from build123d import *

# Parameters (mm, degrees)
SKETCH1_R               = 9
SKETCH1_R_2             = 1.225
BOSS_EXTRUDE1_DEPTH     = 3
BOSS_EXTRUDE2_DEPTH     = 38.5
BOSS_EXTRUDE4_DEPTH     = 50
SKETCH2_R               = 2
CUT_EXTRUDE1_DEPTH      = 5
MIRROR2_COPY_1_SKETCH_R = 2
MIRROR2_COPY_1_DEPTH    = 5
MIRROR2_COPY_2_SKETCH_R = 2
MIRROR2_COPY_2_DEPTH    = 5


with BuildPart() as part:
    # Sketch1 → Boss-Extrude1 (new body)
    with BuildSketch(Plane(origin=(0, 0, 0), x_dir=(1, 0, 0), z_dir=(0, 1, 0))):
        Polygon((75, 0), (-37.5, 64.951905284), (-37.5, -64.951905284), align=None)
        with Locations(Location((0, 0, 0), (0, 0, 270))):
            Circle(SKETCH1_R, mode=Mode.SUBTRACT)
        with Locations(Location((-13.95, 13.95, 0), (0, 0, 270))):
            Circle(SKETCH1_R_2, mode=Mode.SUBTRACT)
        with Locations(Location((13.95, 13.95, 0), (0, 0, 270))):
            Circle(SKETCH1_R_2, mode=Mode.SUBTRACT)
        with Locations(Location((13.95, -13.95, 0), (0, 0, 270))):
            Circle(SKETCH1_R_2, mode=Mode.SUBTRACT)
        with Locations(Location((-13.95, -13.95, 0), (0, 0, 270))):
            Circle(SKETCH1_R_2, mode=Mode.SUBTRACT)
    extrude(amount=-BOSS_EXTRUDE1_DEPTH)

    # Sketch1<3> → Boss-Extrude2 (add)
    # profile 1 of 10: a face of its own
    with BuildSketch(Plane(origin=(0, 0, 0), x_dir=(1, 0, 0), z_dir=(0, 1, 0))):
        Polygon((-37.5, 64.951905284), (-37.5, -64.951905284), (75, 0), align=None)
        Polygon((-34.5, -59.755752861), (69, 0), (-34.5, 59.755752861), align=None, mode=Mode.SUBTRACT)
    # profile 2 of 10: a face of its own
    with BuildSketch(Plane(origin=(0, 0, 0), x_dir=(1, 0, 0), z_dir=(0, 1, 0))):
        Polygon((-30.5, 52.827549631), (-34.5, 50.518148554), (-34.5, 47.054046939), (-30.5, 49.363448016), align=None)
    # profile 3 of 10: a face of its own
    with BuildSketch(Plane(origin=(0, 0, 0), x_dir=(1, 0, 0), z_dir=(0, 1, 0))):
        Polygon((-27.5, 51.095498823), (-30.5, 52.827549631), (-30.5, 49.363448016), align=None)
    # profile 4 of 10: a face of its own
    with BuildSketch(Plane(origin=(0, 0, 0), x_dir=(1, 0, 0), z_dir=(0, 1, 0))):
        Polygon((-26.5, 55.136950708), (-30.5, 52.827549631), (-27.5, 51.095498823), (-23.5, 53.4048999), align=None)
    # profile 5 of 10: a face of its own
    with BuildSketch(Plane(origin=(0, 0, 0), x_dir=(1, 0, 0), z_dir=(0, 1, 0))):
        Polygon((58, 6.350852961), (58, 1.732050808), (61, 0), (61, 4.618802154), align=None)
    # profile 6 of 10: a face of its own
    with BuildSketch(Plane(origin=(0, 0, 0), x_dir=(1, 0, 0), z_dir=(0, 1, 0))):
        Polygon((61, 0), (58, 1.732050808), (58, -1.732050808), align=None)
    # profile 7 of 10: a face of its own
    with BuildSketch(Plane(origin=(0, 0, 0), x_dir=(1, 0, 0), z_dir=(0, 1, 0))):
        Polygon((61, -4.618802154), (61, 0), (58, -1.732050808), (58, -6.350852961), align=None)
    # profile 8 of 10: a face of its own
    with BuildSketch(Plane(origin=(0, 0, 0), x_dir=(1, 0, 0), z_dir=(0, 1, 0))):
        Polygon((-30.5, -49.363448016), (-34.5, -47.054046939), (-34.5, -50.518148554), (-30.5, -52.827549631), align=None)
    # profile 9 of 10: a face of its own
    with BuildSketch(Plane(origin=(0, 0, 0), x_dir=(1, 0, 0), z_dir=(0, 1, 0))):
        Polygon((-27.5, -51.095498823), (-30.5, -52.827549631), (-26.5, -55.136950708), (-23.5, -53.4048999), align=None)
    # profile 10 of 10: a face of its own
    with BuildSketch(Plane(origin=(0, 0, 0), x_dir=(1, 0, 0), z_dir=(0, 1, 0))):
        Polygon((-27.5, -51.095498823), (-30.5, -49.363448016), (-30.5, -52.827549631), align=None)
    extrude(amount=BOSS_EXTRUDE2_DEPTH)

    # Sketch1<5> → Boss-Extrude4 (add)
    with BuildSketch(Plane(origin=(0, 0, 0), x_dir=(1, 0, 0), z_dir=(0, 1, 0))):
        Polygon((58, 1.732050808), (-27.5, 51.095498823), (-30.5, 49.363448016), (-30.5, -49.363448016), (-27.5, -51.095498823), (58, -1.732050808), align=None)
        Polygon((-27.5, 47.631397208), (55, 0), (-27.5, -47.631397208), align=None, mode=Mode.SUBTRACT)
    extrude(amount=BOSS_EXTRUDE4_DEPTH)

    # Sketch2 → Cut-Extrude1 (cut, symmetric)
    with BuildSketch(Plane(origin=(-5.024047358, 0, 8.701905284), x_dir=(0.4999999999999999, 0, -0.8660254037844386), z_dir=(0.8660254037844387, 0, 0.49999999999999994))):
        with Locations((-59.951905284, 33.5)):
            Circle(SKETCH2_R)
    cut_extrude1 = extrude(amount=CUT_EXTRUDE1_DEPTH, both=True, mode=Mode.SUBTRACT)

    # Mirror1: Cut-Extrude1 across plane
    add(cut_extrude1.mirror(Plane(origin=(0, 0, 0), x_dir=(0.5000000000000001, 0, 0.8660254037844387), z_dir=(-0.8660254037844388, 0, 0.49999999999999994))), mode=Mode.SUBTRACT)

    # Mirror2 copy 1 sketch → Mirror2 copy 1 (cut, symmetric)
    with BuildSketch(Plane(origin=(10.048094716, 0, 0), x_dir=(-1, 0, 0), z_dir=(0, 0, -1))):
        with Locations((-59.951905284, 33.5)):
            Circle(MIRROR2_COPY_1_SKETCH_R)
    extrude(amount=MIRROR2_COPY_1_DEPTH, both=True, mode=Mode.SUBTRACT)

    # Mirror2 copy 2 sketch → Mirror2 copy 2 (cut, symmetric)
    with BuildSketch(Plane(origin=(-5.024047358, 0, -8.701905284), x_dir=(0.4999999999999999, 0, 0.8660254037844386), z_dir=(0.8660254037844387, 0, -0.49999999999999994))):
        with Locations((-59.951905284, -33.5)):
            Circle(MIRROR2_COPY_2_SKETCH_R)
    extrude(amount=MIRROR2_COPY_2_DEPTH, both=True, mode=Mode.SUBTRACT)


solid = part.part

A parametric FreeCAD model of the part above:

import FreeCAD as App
import Part
import Sketcher
from FreeCAD import Vector
Q = App.Units.Quantity


def add_polygon(sketch, points):
    """Adds a closed chain of lines whose ends are joined by coincident constraints."""
    first, n = sketch.GeometryCount, len(points)
    for a, b in zip(points, points[1:] + points[:1]):
        sketch.addGeometry(Part.LineSegment(App.Vector(*a, 0), App.Vector(*b, 0)), False)
    for i in range(n):
        sketch.addConstraint(Sketcher.Constraint("Coincident", first + i, 2, first + (i + 1) % n, 1))

doc = App.newDocument("Part")
params = doc.addObject("Spreadsheet::Sheet", "Params")
for row, (alias, value) in enumerate([
    ("sketch1_diameter", "18 mm"),
    ("sketch1_diameter2", "2.45 mm"),
    ("pad1_length", "3 mm"),
    ("pad2_length", "38.5 mm"),
    ("pad3_length", "50 mm"),
    ("sketch4_diameter", "4 mm"),
    ("pocket1_length", "10 mm"),
    ("sketch5_diameter", "4 mm"),
    ("pocket2_length", "10 mm"),
    ("sketch6_diameter", "4 mm"),
    ("pocket3_length", "10 mm"),
], start=1):
    params.set(f"A{row}", alias)
    params.set(f"B{row}", "=" + value)
    params.setAlias(f"B{row}", alias)

body = doc.addObject("PartDesign::Body", "Body")

# Sketch on XZ plane
sketch1 = body.newObject("Sketcher::SketchObject", "Sketch")
sketch1.AttachmentSupport = (doc.getObject("XZ_Plane"), [""])
sketch1.MapMode = "FlatFace"
add_polygon(sketch1, [(75, 0), (-37.5, -65), (-37.5, 65)])  # lines 0-2
sketch1.addGeometry(Part.Circle(Vector(-13.9, 13.9, 0), Vector(0, 0, 1), 1.2), False)  # 3
sketch1.addGeometry(Part.Circle(Vector(13.9, 13.9, 0), Vector(0, 0, 1), 1.2), False)  # 4
sketch1.addGeometry(Part.Circle(Vector(-13.9, -13.9, 0), Vector(0, 0, 1), 1.2), False)  # 5
sketch1.addGeometry(Part.Circle(Vector(0, 0, 0), Vector(0, 0, 1), 9), False)  # 6
sketch1.addGeometry(Part.Circle(Vector(13.9, -13.9, 0), Vector(0, 0, 1), 1.2), False)  # 7
sketch1.addConstraint([
    Sketcher.Constraint("Vertical", 1),
    Sketcher.Constraint("Coincident", 6, 3, -1, 1),
    Sketcher.Constraint("Equal", 3, 4),
    Sketcher.Constraint("Equal", 4, 5),
    Sketcher.Constraint("Equal", 5, 7),
    Sketcher.Constraint("Symmetric", 4, 3, 5, 3, -1, 1),
    Sketcher.Constraint("Symmetric", 3, 3, 7, 3, -1, 1),
    Sketcher.Constraint("Symmetric", 3, 3, 4, 3, -2),
    Sketcher.Constraint("PointOnObject", 2, 2, -1),
    Sketcher.Constraint("Equal", 0, 2),
    Sketcher.Constraint("Diameter", 6, 18.0),
    Sketcher.Constraint("Diameter", 3, 2.45),
    Sketcher.Constraint("Angle", 0, Q("-150 deg")),
    Sketcher.Constraint("DistanceX", -1, 1, 2, 2, 75.0),
    Sketcher.Constraint("DistanceX", 0, 2, -1, 1, 37.5),
    Sketcher.Constraint("DistanceX", 3, 3, 4, 3, 27.9),
    Sketcher.Constraint("DistanceY", 5, 3, 3, 3, 27.9),
])
sketch1.setExpression("Constraints[13]", "Params.sketch1_diameter")
sketch1.setExpression("Constraints[14]", "Params.sketch1_diameter2")
pad1 = body.newObject("PartDesign::Pad", "Pad")
pad1.Profile = sketch1
pad1.setExpression("Length", "Params.pad1_length")

# Sketch on XZ plane
sketch2 = body.newObject("Sketcher::SketchObject", "Sketch001")
sketch2.AttachmentSupport = (doc.getObject("XZ_Plane"), [""])
sketch2.MapMode = "FlatFace"
add_polygon(sketch2, [(-37.5, -65), (-37.5, 65), (75, 0)])  # lines 0-2
add_polygon(sketch2, [(-26.5, 55.1), (-34.5, 59.8), (-34.5, 50.5)])  # lines 3-5
add_polygon(sketch2, [(58, 6.4), (-23.5, 53.4), (-27.5, 51.1), (-30.5, 49.4), (-34.5, 47.1), (-34.5, -47.1), (-30.5, -49.4), (-27.5, -51.1), (-23.5, -53.4), (58, -6.4)])  # lines 6-15
add_polygon(sketch2, [(69, 0), (61, 4.6), (61, -4.6)])  # lines 16-18
add_polygon(sketch2, [(-34.5, -59.8), (-26.5, -55.1), (-34.5, -50.5)])  # lines 19-21
sketch2.addConstraint([
    Sketcher.Constraint("Vertical", 0),
    Sketcher.Constraint("Vertical", 4),
    Sketcher.Constraint("Vertical", 10),
    Sketcher.Constraint("Vertical", 15),
    Sketcher.Constraint("Vertical", 17),
    Sketcher.Constraint("Vertical", 21),
    Sketcher.Constraint("Symmetric", 8, 2, 11, 2, -1),
    Sketcher.Constraint("Symmetric", 7, 2, 12, 2, -1),
    Sketcher.Constraint("Symmetric", 6, 2, 13, 2, -1),
    Sketcher.Constraint("Symmetric", 5, 2, 19, 2, -1),
    Sketcher.Constraint("Symmetric", 4, 2, 20, 2, -1),
    Sketcher.Constraint("PointOnObject", 1, 2, -1),
    Sketcher.Constraint("PointOnObject", 18, 2, -1),
    Sketcher.Constraint("Parallel", 1, 3),
    Sketcher.Constraint("Parallel", 2, 5),
    Sketcher.Constraint("Parallel", 3, 6),
    Sketcher.Constraint("Parallel", 5, 7),
    Sketcher.Constraint("Parallel", 7, 8),
    Sketcher.Constraint("Parallel", 8, 9),
    Sketcher.Constraint("Parallel", 6, 11),
    Sketcher.Constraint("Parallel", 11, 12),
    Sketcher.Constraint("Parallel", 9, 14),
    Sketcher.Constraint("Parallel", 13, 16),
    Sketcher.Constraint("Parallel", 14, 18),
    Sketcher.Constraint("Parallel", 18, 19),
    Sketcher.Constraint("Vertical", 4, 2, 9, 2),
    Sketcher.Constraint("Equal", 4, 17),
    Sketcher.Constraint("Equal", 7, 9),
    Sketcher.Constraint("Angle", 1, Q("-30 deg")),
    Sketcher.Constraint("DistanceX", -1, 1, 1, 2, 75.0),
    Sketcher.Constraint("DistanceX", -1, 1, 14, 2, 58.0),
    Sketcher.Constraint("DistanceX", -1, 1, 16, 2, 61.0),
    Sketcher.Constraint("DistanceX", -1, 1, 18, 2, 69.0),
    Sketcher.Constraint("DistanceX", 0, 2, 3, 2, 3.0),
    Sketcher.Constraint("DistanceX", 5, 2, 6, 2, 3.0),
    Sketcher.Constraint("DistanceX", 7, 2, 5, 2, 1.0),
    Sketcher.Constraint("DistanceX", 0, 2, -1, 1, 37.5),
    Sketcher.Constraint("DistanceY", -1, 1, 6, 2, 53.4049),
    Sketcher.Constraint("DistanceY", 8, 2, 4, 2, 1.154701),
])
pad2 = body.newObject("PartDesign::Pad", "Pad001")
pad2.Profile = sketch2
pad2.setExpression("Length", "Params.pad2_length")
pad2.Reversed = True

# Sketch on XZ plane
sketch3 = body.newObject("Sketcher::SketchObject", "Sketch002")
sketch3.AttachmentSupport = (doc.getObject("XZ_Plane"), [""])
sketch3.MapMode = "FlatFace"
add_polygon(sketch3, [(58, -1.7), (-27.5, -51.1), (-30.5, -49.4), (-30.5, 49.4), (-27.5, 51.1), (58, 1.7)])  # lines 0-5
add_polygon(sketch3, [(-27.5, 47.6), (-27.5, -47.6), (55, 0)])  # lines 6-8
sketch3.addConstraint([
    Sketcher.Constraint("Vertical", 2),
    Sketcher.Constraint("Vertical", 5),
    Sketcher.Constraint("Vertical", 6),
    Sketcher.Constraint("Symmetric", 0, 2, 3, 2, -1),
    Sketcher.Constraint("PointOnObject", 7, 2, -1),
    Sketcher.Constraint("Parallel", 0, 3),
    Sketcher.Constraint("Parallel", 1, 4),
    Sketcher.Constraint("Parallel", 3, 7),
    Sketcher.Constraint("Parallel", 4, 8),
    Sketcher.Constraint("Vertical", 3, 2, 6, 2),
    Sketcher.Constraint("Equal", 1, 3),
    Sketcher.Constraint("Angle", 0, Q("-150 deg")),
    Sketcher.Constraint("DistanceX", -1, 1, 4, 2, 58.0),
    Sketcher.Constraint("DistanceX", -1, 1, 7, 2, 55.0),
    Sketcher.Constraint("DistanceX", 1, 2, 0, 2, 3.0),
    Sketcher.Constraint("DistanceX", 0, 2, -1, 1, 27.5),
    Sketcher.Constraint("DistanceY", 5, 2, 5, 1, 3.464102),
])
pad3 = body.newObject("PartDesign::Pad", "Pad002")
pad3.Profile = sketch3
pad3.setExpression("Length", "Params.pad3_length")
pad3.Reversed = True

# Sketch on an angled plane
sketch4 = body.newObject("Sketcher::SketchObject", "Sketch003")
sketch4.Placement = App.Placement(Vector(-5.024047, 0, 8.701905), App.Rotation(Vector(0.5, 0, -0.866025404), Vector(0, 1, 0), Vector(0.866025404, 0, 0.5), "ZXY"))
sketch4.addGeometry(Part.Circle(Vector(-60, 33.5, 0), Vector(0, 0, 1), 2), False)
sketch4.addConstraint([
    Sketcher.Constraint("Diameter", 0, 4.0),
    Sketcher.Constraint("DistanceY", -1, 1, 0, 3, 33.5),
    Sketcher.Constraint("DistanceX", 0, 3, -1, 1, 59.951905),
])
sketch4.setExpression("Constraints[0]", "Params.sketch4_diameter")
pocket1 = body.newObject("PartDesign::Pocket", "Pocket")
pocket1.Profile = sketch4
pocket1.setExpression("Length", "Params.pocket1_length")
pocket1.Midplane = True
doc.recompute()

datumplane = body.newObject("PartDesign::Plane", "DatumPlane")
datumplane.Placement = App.Placement(Vector(0, 0, 0), App.Rotation(Vector(-0.5, 0, -0.866025404), Vector(0, -1, 0), Vector(-0.866025404, 0, 0.5), "ZXY"))
mirrored = body.newObject("PartDesign::Mirrored", "Mirrored")
mirrored.Originals = [pocket1]
mirrored.MirrorPlane = (datumplane, [""])
body.Tip = mirrored

# Sketch on XY plane
sketch5 = body.newObject("Sketcher::SketchObject", "Sketch004")
sketch5.AttachmentSupport = (doc.getObject("XY_Plane"), [""])
sketch5.MapMode = "FlatFace"
sketch5.addGeometry(Part.Circle(Vector(70, 33.5, 0), Vector(0, 0, 1), 2), False)
sketch5.addConstraint([
    Sketcher.Constraint("Diameter", 0, 4.0),
    Sketcher.Constraint("DistanceX", -1, 1, 0, 3, 70.0),
    Sketcher.Constraint("DistanceY", -1, 1, 0, 3, 33.5),
])
sketch5.setExpression("Constraints[0]", "Params.sketch5_diameter")
pocket2 = body.newObject("PartDesign::Pocket", "Pocket001")
pocket2.Profile = sketch5
pocket2.setExpression("Length", "Params.pocket2_length")
pocket2.Midplane = True

# Sketch on an angled plane
sketch6 = body.newObject("Sketcher::SketchObject", "Sketch005")
sketch6.Placement = App.Placement(Vector(-5.024047, 0, -8.701905), App.Rotation(Vector(0.5, 0, 0.866025404), Vector(0, -1, 0), Vector(0.866025404, 0, -0.5), "ZXY"))
sketch6.addGeometry(Part.Circle(Vector(-60, -33.5, 0), Vector(0, 0, 1), 2), False)
sketch6.addConstraint([
    Sketcher.Constraint("Diameter", 0, 4.0),
    Sketcher.Constraint("DistanceY", 0, 3, -1, 1, 33.5),
    Sketcher.Constraint("DistanceX", 0, 3, -1, 1, 59.951905),
])
sketch6.setExpression("Constraints[0]", "Params.sketch6_diameter")
pocket3 = body.newObject("PartDesign::Pocket", "Pocket002")
pocket3.Profile = sketch6
pocket3.setExpression("Length", "Params.pocket3_length")
pocket3.Midplane = True

doc.recompute()
